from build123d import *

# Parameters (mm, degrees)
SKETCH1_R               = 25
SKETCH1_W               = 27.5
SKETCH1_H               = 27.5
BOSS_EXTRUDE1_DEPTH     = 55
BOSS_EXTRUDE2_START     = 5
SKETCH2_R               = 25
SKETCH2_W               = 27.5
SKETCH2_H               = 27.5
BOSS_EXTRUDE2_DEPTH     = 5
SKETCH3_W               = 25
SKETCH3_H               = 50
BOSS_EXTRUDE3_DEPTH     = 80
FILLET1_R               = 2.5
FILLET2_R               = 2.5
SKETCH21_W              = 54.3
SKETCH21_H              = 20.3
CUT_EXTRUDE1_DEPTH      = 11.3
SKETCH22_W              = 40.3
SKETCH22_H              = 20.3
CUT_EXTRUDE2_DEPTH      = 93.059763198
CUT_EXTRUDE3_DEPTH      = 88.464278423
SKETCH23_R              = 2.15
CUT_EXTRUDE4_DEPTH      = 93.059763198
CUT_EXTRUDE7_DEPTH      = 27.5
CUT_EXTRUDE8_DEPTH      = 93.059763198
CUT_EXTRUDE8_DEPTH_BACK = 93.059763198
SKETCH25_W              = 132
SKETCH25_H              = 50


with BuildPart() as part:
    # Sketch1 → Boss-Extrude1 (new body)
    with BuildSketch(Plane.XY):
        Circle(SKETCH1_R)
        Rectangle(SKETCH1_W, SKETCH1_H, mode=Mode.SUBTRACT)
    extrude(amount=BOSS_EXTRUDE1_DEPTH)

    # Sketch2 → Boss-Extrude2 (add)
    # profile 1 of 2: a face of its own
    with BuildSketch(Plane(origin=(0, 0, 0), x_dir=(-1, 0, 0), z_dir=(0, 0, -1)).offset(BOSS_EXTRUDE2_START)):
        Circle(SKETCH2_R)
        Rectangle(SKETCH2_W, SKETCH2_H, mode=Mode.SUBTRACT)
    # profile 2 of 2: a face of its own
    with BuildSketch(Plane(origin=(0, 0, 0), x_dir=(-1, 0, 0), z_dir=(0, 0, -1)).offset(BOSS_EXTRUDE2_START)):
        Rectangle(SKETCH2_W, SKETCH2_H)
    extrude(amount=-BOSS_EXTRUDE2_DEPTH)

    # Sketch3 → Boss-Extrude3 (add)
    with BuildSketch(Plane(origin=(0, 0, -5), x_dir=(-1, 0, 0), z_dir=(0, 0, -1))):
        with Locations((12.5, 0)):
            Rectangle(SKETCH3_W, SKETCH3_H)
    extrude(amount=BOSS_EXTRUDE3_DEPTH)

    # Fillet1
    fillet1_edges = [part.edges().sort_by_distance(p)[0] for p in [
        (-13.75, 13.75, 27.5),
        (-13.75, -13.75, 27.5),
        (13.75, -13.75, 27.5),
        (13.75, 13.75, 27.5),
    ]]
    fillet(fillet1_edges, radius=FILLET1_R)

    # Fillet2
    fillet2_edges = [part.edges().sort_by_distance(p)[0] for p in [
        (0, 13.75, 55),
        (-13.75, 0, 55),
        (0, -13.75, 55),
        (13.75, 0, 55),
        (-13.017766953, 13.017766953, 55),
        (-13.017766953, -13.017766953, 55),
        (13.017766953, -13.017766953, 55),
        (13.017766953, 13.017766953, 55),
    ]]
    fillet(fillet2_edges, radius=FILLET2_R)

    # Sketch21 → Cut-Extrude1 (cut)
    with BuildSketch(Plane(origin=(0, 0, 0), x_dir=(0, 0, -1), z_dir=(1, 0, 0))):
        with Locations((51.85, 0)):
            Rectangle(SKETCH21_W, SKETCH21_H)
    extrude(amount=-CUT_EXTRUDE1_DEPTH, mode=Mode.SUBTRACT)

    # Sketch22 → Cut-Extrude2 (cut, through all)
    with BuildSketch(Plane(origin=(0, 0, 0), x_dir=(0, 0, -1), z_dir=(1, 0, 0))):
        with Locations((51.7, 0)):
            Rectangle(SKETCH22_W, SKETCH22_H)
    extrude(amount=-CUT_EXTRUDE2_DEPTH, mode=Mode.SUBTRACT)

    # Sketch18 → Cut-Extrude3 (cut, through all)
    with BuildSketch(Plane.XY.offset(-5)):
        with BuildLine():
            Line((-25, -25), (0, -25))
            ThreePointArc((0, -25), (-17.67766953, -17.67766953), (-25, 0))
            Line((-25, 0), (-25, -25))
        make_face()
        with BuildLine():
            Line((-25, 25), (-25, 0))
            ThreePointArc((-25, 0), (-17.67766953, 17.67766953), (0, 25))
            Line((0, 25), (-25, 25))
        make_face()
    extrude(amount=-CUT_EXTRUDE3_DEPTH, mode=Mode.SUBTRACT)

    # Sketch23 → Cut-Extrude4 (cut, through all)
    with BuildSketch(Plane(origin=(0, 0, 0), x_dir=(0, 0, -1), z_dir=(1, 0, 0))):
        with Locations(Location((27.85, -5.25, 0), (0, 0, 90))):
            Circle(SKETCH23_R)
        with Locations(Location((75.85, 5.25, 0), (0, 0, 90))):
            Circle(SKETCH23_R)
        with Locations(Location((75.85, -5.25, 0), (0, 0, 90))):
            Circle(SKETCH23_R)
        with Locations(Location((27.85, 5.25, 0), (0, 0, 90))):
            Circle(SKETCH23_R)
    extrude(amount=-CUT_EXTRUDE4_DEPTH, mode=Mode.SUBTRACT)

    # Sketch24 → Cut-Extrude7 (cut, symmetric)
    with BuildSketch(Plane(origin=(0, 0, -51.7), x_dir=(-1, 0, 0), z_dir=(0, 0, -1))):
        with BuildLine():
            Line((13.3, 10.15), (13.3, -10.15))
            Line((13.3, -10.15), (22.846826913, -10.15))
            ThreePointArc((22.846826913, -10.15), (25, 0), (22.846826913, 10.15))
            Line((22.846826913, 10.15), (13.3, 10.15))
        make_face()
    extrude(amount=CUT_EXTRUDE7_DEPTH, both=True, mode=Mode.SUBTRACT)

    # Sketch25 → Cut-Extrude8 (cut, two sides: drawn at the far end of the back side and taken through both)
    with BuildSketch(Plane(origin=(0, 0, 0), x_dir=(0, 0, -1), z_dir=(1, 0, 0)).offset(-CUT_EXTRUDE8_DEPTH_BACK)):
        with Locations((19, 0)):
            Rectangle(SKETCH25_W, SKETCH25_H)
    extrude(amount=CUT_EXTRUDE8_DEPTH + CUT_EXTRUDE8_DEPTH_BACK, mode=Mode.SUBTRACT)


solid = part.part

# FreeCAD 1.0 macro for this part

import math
import FreeCAD as App
import Part
import Sketcher


def edges_at(feature, points):
    """Names of the edges that pass closest to the given points."""
    edges = feature.Shape.Edges
    near = lambda p: min(range(len(edges)), key=lambda i: edges[i].distToShape(Part.Vertex(*p))[0])
    return sorted({f"Edge{near(p) + 1}" for p in points})


def add_polygon(sketch, points):
    """Adds a closed chain of lines whose ends are joined by coincident constraints."""
    first, n = sketch.GeometryCount, len(points)
    for a, b in zip(points, points[1:] + points[:1]):
        sketch.addGeometry(Part.LineSegment(App.Vector(*a, 0), App.Vector(*b, 0)), False)
    for i in range(n):
        sketch.addConstraint(Sketcher.Constraint("Coincident", first + i, 2, first + (i + 1) % n, 1))

doc = App.newDocument("Part")
body = doc.addObject("PartDesign::Body", "Body")

sketch1 = body.newObject("Sketcher::SketchObject", "Sketch")
sketch1.AttachmentSupport = (doc.getObject("XY_Plane"), [""])
sketch1.MapMode = "FlatFace"
sketch1.addGeometry(Part.Circle(App.Vector(0, 0, 0), App.Vector(0, 0, 1), 25), False)
add_polygon(sketch1, [(14, -14), (-14, -14), (-14, 14), (14, 14)])
sketch1.addConstraint([
    Sketcher.Constraint("Horizontal", 1),
    Sketcher.Constraint("Vertical", 2),
    Sketcher.Constraint("Horizontal", 3),
    Sketcher.Constraint("Vertical", 4),
    Sketcher.Constraint("Coincident", 0, 3, -1, 1),
    Sketcher.Constraint("Symmetric", 1, 2, 3, 2, -1, 1),
    Sketcher.Constraint("Equal", 3, 2),
    Sketcher.Constraint("Diameter", 0, 50.0),
    Sketcher.Constraint("DistanceX", 1, 2, 1, 1, 27.5),
])
pad1 = body.newObject("PartDesign::Pad", "Pad")
pad1.Profile = sketch1
pad1.Length = 55

sketch2 = body.newObject("Sketcher::SketchObject", "Sketch001")
sketch2.AttachmentSupport = (doc.getObject("XY_Plane"), [""])
sketch2.MapMode = "FlatFace"
sketch2.AttachmentOffset = App.Placement(App.Vector(0, 0, -5), App.Rotation())
sketch2.addGeometry(Part.Circle(App.Vector(0, 0, 0), App.Vector(0, 0, 1), 25), False)
sketch2.addConstraint([
    Sketcher.Constraint("Coincident", 0, 3, -1, 1),
    Sketcher.Constraint("Diameter", 0, 50.0),
])
pad2 = body.newObject("PartDesign::Pad", "Pad001")
pad2.Profile = sketch2
pad2.Length = 5

sketch3 = body.newObject("Sketcher::SketchObject", "Sketch002")
sketch3.AttachmentSupport = (doc.getObject("XY_Plane"), [""])
sketch3.MapMode = "FlatFace"
sketch3.AttachmentOffset = App.Placement(App.Vector(0, 0, -5), App.Rotation())
add_polygon(sketch3, [(0, 25), (0, -25), (-25, -25), (-25, 25)])
sketch3.addConstraint([
    Sketcher.Constraint("Vertical", 0),
    Sketcher.Constraint("Horizontal", 1),
    Sketcher.Constraint("Vertical", 2),
    Sketcher.Constraint("Horizontal", 3),
    Sketcher.Constraint("Symmetric", 0, 2, 3, 2, -1, 1),
    Sketcher.Constraint("DistanceX", 1, 2, 1, 1, 25.0),
    Sketcher.Constraint("DistanceY", 0, 2, 0, 1, 50.0),
])
pad3 = body.newObject("PartDesign::Pad", "Pad002")
pad3.Profile = sketch3
pad3.Length = 80
pad3.Reversed = True
doc.recompute()

fillet = body.newObject("PartDesign::Fillet", "Fillet")
fillet.Base = (pad3, edges_at(pad3, [
    (-13.75, 13.75, 27.5),
    (-13.75, -13.75, 27.5),
    (13.75, -13.75, 27.5),
    (13.75, 13.75, 27.5),
]))
fillet.Radius = 2.5
doc.recompute()

fillet2 = body.newObject("PartDesign::Fillet", "Fillet001")
fillet2.Base = (fillet, edges_at(fillet, [
    (0, 13.75, 55),
    (-13.75, 0, 55),
    (0, -13.75, 55),
    (13.75, 0, 55),
    (-13.018, 13.018, 55),
    (-13.018, -13.018, 55),
    (13.018, -13.018, 55),
    (13.018, 13.018, 55),
]))
fillet2.Radius = 2.5

sketch4 = body.newObject("Sketcher::SketchObject", "Sketch003")
sketch4.AttachmentSupport = (doc.getObject("YZ_Plane"), [""])
sketch4.MapMode = "FlatFace"
add_polygon(sketch4, [(10, -25), (-10, -25), (-10, -79), (10, -79)])
sketch4.addConstraint([
    Sketcher.Constraint("Horizontal", 0),
    Sketcher.Constraint("Vertical", 1),
    Sketcher.Constraint("Horizontal", 2),
    Sketcher.Constraint("Vertical", 3),
    Sketcher.Constraint("DistanceX", 0, 2, 0, 1, 20.3),
    Sketcher.Constraint("DistanceY", 1, 2, 1, 1, 54.3),
    Sketcher.Constraint("DistanceY", 1, 2, -1, 1, 79.0),
    Sketcher.Constraint("DistanceX", 0, 2, -1, 1, 10.15),
])
pocket1 = body.newObject("PartDesign::Pocket", "Pocket")
pocket1.Profile = sketch4
pocket1.Length = 11.3

sketch5 = body.newObject("Sketcher::SketchObject", "Sketch004")
sketch5.AttachmentSupport = (doc.getObject("YZ_Plane"), [""])
sketch5.MapMode = "FlatFace"
add_polygon(sketch5, [(10, -32), (-10, -32), (-10, -72), (10, -72)])
sketch5.addConstraint([
    Sketcher.Constraint("Horizontal", 0),
    Sketcher.Constraint("Vertical", 1),
    Sketcher.Constraint("Horizontal", 2),
    Sketcher.Constraint("Vertical", 3),
    Sketcher.Constraint("DistanceX", 0, 2, 0, 1, 20.3),
    Sketcher.Constraint("DistanceY", 1, 2, 1, 1, 40.3),
    Sketcher.Constraint("DistanceX", 0, 2, -1, 1, 10.15),
    Sketcher.Constraint("DistanceY", 0, 2, -1, 1, 31.55),
])
pocket2 = body.newObject("PartDesign::Pocket", "Pocket001")
pocket2.Profile = sketch5
pocket2.Type = "ThroughAll"

sketch6 = body.newObject("Sketcher::SketchObject", "Sketch005")
sketch6.AttachmentSupport = (doc.getObject("XY_Plane"), [""])
sketch6.MapMode = "FlatFace"
sketch6.AttachmentOffset = App.Placement(App.Vector(0, 0, -5), App.Rotation())
sketch6.addGeometry([
    Part.LineSegment(App.Vector(-25, -25, 0), App.Vector(0, -25, 0)),
    Part.ArcOfCircle(Part.Circle(App.Vector(0, 0, 0), App.Vector(0, 0, 1), 25), math.radians(180), math.radians(270)),
    Part.LineSegment(App.Vector(-25, 0, 0), App.Vector(-25, -25, 0)),
    Part.LineSegment(App.Vector(-25, 25, 0), App.Vector(-25, 0, 0)),
    Part.ArcOfCircle(Part.Circle(App.Vector(0, 0, 0), App.Vector(0, 0, 1), 25), math.radians(90), math.radians(180)),
    Part.LineSegment(App.Vector(0, 25, 0), App.Vector(-25, 25, 0)),
], False)
sketch6.addConstraint([
    Sketcher.Constraint("Tangent", 0, 2, 1, 2),
    Sketcher.Constraint("Tangent", 1, 1, 2, 1),
    Sketcher.Constraint("Coincident", 2, 2, 0, 1),
    Sketcher.Constraint("Tangent", 3, 2, 4, 2),
    Sketcher.Constraint("Tangent", 4, 1, 5, 1),
    Sketcher.Constraint("Coincident", 5, 2, 3, 1),
    Sketcher.Constraint("Horizontal", 0),
    Sketcher.Constraint("Vertical", 2),
    Sketcher.Constraint("Vertical", 3),
    Sketcher.Constraint("Horizontal", 5),
    Sketcher.Constraint("Coincident", 1, 3, -1, 1),
    Sketcher.Constraint("Coincident", 4, 3, -1, 1),
    Sketcher.Constraint("Equal", 1, 4),
    Sketcher.Constraint("Radius", 1, 25.0),
])
pocket3 = body.newObject("PartDesign::Pocket", "Pocket002")
pocket3.Profile = sketch6
pocket3.Type = "ThroughAll"

sketch7 = body.newObject("Sketcher::SketchObject", "Sketch006")
sketch7.AttachmentSupport = (doc.getObject("YZ_Plane"), [""])
sketch7.MapMode = "FlatFace"
sketch7.addGeometry([
    Part.Circle(App.Vector(-5.2, -27.9, 0), App.Vector(0, 0, 1), 2.1),
    Part.Circle(App.Vector(5.2, -75.8, 0), App.Vector(0, 0, 1), 2.1),
    Part.Circle(App.Vector(-5.2, -75.8, 0), App.Vector(0, 0, 1), 2.1),
    Part.Circle(App.Vector(5.2, -27.9, 0), App.Vector(0, 0, 1), 2.1),
], False)
sketch7.addConstraint([
    Sketcher.Constraint("Equal", 0, 1),
    Sketcher.Constraint("Equal", 1, 2),
    Sketcher.Constraint("Equal", 2, 3),
    Sketcher.Constraint("Symmetric", 1, 3, 2, 3, -2),
    Sketcher.Constraint("Symmetric", 0, 3, 3, 3, -2),
    Sketcher.Constraint("Vertical", 0, 3, 2, 3),
    Sketcher.Constraint("Diameter", 0, 4.3),
    Sketcher.Constraint("DistanceY", 1, 3, 0, 3, 48.0),
    Sketcher.Constraint("DistanceX", 0, 3, 1, 3, 10.5),
    Sketcher.Constraint("DistanceY", 0, 3, -1, 1, 27.85),
])
pocket4 = body.newObject("PartDesign::Pocket", "Pocket003")
pocket4.Profile = sketch7
pocket4.Type = "ThroughAll"

sketch8 = body.newObject("Sketcher::SketchObject", "Sketch007")
sketch8.AttachmentSupport = (doc.getObject("XY_Plane"), [""])
sketch8.MapMode = "FlatFace"
sketch8.AttachmentOffset = App.Placement(App.Vector(0, 0, -51.7), App.Rotation())
sketch8.addGeometry([
    Part.LineSegment(App.Vector(-13, 10, 0), App.Vector(-13, -10, 0)),
    Part.LineSegment(App.Vector(-13, -10, 0), App.Vector(-23, -10, 0)),
    Part.ArcOfCircle(Part.Circle(App.Vector(0, 0, 0), App.Vector(0, 0, 1), 25), math.radians(156), math.radians(204)),
    Part.LineSegment(App.Vector(-23, 10, 0), App.Vector(-13, 10, 0)),
], False)
sketch8.addConstraint([
    Sketcher.Constraint("Coincident", 0, 2, 1, 1),
    Sketcher.Constraint("Coincident", 1, 2, 2, 2),
    Sketcher.Constraint("Coincident", 2, 1, 3, 1),
    Sketcher.Constraint("Coincident", 3, 2, 0, 1),
    Sketcher.Constraint("Vertical", 0),
    Sketcher.Constraint("Horizontal", 1),
    Sketcher.Constraint("Horizontal", 3),
    Sketcher.Constraint("Coincident", 2, 3, -1, 1),
    Sketcher.Constraint("Vertical", 1, 2, 2, 1),
    Sketcher.Constraint("Radius", 2, 25.0),
    Sketcher.Constraint("DistanceY", 0, 2, 0, 1, 20.3),
    Sketcher.Constraint("DistanceX", 0, 2, -1, 1, 13.3),
])
pocket5 = body.newObject("PartDesign::Pocket", "Pocket004")
pocket5.Profile = sketch8
pocket5.Length = 55
pocket5.Midplane = True

sketch9 = body.newObject("Sketcher::SketchObject", "Sketch008")
sketch9.AttachmentSupport = (doc.getObject("YZ_Plane"), [""])
sketch9.MapMode = "FlatFace"
add_polygon(sketch9, [(25, 47), (-25, 47), (-25, -85), (25, -85)])
sketch9.addConstraint([
    Sketcher.Constraint("Horizontal", 0),
    Sketcher.Constraint("Vertical", 1),
    Sketcher.Constraint("Horizontal", 2),
    Sketcher.Constraint("Vertical", 3),
    Sketcher.Constraint("DistanceX", 0, 2, 0, 1, 50.0),
    Sketcher.Constraint("DistanceY", 1, 2, 1, 1, 132.0),
    Sketcher.Constraint("DistanceX", 0, 2, -1, 1, 25.0),
    Sketcher.Constraint("DistanceY", -1, 1, 0, 2, 47.0),
])
pocket6 = body.newObject("PartDesign::Pocket", "Pocket005")
pocket6.Profile = sketch9
pocket6.Type = "ThroughAll"
pocket6.Midplane = True

doc.recompute()
